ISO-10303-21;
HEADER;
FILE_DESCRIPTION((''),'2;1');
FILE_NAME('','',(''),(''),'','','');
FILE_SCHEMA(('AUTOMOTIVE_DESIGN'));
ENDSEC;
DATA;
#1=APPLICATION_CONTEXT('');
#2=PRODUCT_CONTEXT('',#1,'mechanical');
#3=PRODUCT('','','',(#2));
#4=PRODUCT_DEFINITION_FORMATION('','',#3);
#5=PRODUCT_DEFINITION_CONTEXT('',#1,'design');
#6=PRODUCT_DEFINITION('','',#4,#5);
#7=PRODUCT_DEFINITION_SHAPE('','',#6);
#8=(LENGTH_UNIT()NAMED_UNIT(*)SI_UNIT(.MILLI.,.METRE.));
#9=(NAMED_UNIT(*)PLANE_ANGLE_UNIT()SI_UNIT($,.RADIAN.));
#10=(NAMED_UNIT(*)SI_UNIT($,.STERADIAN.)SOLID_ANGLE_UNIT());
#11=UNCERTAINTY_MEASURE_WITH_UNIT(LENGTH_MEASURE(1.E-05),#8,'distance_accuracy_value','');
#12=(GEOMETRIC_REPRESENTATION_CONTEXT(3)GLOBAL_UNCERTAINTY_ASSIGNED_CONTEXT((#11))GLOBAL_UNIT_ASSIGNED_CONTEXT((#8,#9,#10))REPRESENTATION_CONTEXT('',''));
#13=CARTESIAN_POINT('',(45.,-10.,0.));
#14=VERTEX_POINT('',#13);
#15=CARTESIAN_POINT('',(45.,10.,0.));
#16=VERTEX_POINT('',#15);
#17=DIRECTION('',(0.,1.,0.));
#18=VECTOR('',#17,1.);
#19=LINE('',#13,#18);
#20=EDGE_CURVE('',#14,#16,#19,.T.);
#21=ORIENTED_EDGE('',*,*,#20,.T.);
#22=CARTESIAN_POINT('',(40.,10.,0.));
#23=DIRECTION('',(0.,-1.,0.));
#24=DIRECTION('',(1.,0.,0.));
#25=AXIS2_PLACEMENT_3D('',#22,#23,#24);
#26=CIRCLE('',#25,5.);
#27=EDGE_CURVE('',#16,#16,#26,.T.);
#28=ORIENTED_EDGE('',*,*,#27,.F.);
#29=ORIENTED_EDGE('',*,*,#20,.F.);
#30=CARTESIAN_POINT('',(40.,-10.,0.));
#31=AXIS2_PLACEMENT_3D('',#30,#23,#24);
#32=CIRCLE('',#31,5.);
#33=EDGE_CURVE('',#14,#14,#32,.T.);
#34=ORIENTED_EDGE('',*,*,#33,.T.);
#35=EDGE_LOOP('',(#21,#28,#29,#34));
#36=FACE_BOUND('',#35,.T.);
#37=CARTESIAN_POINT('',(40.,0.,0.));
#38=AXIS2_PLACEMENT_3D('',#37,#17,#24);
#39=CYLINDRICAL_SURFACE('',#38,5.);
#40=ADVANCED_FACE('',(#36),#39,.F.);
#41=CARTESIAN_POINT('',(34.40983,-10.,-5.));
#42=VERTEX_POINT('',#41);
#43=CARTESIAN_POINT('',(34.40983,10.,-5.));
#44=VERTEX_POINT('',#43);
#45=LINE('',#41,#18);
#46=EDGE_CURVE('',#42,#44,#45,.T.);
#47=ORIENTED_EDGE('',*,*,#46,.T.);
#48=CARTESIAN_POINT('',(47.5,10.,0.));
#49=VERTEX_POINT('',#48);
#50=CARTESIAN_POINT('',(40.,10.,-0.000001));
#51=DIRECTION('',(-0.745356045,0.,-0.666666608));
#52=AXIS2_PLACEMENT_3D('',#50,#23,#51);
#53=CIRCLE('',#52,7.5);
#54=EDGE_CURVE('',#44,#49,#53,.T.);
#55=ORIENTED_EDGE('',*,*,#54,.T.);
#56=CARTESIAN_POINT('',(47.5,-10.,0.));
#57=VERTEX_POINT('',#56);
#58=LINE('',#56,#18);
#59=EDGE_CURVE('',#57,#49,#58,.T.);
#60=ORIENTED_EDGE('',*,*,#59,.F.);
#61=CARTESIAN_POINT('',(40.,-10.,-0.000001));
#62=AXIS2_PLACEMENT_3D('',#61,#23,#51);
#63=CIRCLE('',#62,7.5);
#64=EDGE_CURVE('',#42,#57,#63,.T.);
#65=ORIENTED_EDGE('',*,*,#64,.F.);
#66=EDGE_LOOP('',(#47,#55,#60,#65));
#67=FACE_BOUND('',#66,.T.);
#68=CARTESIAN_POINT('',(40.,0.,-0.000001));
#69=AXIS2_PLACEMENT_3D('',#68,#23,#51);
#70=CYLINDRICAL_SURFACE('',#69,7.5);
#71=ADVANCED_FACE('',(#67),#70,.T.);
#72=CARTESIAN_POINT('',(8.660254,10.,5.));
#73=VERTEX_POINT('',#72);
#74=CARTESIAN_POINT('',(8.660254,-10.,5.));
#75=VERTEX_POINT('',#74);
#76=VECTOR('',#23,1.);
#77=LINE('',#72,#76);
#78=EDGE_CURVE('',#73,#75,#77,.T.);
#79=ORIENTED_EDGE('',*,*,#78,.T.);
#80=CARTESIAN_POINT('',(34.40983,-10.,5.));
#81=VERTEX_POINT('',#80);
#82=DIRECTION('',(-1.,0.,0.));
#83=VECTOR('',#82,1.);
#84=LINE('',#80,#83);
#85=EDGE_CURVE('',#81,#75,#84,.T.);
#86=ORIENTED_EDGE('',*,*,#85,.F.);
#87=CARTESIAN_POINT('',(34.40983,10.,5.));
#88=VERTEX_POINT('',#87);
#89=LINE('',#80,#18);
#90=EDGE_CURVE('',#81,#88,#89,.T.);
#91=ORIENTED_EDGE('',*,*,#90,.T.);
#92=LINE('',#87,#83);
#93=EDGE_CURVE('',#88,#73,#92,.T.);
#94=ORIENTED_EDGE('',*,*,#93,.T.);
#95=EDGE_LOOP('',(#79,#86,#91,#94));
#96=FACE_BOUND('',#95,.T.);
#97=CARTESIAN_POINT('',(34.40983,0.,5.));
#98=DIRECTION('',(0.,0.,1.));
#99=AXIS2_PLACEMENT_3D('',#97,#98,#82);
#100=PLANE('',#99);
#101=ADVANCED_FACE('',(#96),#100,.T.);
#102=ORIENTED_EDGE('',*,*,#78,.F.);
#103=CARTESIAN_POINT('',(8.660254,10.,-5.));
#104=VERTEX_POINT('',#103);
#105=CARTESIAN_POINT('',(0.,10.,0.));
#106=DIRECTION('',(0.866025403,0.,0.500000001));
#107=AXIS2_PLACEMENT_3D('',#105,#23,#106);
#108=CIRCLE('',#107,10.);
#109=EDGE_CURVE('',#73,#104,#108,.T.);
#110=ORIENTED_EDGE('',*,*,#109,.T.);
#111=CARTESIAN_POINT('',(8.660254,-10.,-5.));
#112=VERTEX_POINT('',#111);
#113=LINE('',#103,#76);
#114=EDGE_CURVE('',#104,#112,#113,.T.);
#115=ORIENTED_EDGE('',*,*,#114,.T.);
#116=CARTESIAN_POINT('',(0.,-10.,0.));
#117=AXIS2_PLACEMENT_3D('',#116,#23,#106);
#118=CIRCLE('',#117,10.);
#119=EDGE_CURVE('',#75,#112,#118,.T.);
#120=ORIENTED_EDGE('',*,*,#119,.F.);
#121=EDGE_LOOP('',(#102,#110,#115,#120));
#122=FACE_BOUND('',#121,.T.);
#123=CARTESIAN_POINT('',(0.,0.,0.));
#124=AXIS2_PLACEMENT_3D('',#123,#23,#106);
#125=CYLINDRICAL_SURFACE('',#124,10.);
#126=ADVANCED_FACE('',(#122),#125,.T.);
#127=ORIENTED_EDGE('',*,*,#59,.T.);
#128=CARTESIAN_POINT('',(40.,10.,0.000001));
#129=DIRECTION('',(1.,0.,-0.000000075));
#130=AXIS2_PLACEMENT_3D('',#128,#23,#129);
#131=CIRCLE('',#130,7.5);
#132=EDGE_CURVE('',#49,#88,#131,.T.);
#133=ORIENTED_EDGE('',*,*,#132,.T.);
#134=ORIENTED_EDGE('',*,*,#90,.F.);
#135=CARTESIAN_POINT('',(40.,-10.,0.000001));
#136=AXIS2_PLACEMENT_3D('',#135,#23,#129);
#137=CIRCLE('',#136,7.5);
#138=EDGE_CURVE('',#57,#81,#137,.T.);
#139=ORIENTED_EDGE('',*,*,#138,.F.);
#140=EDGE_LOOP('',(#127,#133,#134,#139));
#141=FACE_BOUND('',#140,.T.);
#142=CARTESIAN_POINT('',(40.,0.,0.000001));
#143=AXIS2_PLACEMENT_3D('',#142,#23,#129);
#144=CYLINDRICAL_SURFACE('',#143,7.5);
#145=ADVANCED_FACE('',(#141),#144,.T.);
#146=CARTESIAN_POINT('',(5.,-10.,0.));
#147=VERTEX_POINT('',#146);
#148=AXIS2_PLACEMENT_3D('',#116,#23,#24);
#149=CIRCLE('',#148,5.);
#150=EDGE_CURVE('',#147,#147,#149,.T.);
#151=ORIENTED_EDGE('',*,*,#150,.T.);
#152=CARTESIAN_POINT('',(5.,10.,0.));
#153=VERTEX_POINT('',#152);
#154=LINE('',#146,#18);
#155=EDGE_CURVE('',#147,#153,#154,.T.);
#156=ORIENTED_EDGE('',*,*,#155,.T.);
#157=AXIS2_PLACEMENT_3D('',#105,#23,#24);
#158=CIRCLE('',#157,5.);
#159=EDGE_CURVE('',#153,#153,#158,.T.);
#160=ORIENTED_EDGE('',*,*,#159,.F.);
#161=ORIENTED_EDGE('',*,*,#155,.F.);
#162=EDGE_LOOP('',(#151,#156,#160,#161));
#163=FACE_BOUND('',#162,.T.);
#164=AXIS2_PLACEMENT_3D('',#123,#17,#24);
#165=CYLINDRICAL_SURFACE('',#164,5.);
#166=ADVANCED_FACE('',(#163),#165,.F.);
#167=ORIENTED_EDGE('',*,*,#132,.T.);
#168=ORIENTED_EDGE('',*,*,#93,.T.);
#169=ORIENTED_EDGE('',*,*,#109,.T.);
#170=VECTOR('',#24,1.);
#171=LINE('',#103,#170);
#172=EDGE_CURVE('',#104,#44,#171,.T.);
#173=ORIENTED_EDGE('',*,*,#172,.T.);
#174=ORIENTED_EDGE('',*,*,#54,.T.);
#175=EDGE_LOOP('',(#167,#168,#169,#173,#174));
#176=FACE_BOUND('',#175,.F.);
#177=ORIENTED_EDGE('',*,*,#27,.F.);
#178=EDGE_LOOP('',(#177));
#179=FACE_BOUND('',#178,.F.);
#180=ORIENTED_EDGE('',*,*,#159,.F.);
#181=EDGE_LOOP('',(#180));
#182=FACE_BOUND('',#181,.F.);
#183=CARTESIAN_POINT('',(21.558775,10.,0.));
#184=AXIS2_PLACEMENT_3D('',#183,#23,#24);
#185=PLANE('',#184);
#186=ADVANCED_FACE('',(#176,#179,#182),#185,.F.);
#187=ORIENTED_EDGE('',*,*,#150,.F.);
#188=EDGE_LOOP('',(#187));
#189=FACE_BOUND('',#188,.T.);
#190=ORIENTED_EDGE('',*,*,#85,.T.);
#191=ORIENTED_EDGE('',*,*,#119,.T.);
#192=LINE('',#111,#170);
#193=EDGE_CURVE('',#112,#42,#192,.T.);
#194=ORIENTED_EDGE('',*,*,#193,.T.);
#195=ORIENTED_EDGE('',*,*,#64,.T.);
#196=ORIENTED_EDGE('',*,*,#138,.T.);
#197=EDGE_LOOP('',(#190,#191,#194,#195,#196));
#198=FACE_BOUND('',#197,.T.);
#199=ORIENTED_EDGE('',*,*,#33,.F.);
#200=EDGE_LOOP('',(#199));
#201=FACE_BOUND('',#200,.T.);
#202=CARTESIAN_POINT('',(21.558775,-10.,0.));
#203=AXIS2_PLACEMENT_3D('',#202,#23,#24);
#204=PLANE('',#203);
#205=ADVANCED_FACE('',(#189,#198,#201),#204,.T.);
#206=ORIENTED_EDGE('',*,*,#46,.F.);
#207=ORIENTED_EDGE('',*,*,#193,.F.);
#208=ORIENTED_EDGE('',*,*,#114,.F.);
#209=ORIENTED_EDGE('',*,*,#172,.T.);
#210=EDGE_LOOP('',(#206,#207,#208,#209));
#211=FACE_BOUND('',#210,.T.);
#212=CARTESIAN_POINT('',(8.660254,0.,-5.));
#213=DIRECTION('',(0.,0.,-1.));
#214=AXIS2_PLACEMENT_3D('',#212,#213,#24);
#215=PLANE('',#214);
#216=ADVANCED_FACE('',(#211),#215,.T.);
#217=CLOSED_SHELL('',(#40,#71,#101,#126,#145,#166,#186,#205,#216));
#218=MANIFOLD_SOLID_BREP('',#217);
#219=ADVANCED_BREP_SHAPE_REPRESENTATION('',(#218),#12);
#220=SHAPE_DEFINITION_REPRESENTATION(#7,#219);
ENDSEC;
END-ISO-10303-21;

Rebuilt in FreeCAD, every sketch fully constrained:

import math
import FreeCAD as App
import Part
import Sketcher
Q = App.Units.Quantity

doc = App.newDocument("Part")
body = doc.addObject("PartDesign::Body", "Body")

sketch1 = body.newObject("Sketcher::SketchObject", "Sketch")
sketch1.AttachmentSupport = (doc.getObject("XZ_Plane"), [""])
sketch1.MapMode = "FlatFace"
sketch1.addGeometry([
    Part.LineSegment(App.Vector(34, 5, 0), App.Vector(9, 5, 0)),
    Part.ArcOfCircle(Part.Circle(App.Vector(0, 0, 0), App.Vector(0, 0, 1), 10), math.radians(30), math.radians(330)),
    Part.LineSegment(App.Vector(9, -5, 0), App.Vector(34, -5, 0)),
    Part.ArcOfCircle(Part.Circle(App.Vector(40, 0, 0), App.Vector(0, 0, 1), 7), math.radians(-138), math.radians(0)),
    Part.ArcOfCircle(Part.Circle(App.Vector(40, 0, 0), App.Vector(0, 0, 1), 7), math.radians(0), math.radians(138)),
    Part.Circle(App.Vector(0, 0, 0), App.Vector(0, 0, 1), 5),
    Part.Circle(App.Vector(40, 0, 0), App.Vector(0, 0, 1), 5),
], False)
sketch1.addConstraint([
    Sketcher.Constraint("Coincident", 0, 2, 1, 1),
    Sketcher.Constraint("Coincident", 1, 2, 2, 1),
    Sketcher.Constraint("Coincident", 2, 2, 3, 1),
    Sketcher.Constraint("Tangent", 3, 2, 4, 1),
    Sketcher.Constraint("Coincident", 4, 2, 0, 1),
    Sketcher.Constraint("Horizontal", 0),
    Sketcher.Constraint("Horizontal", 2),
    Sketcher.Constraint("Coincident", 1, 3, -1, 1),
    Sketcher.Constraint("Coincident", 5, 3, -1, 1),
    Sketcher.Constraint("Coincident", 6, 3, 3, 3),
    Sketcher.Constraint("Equal", 3, 4),
    Sketcher.Constraint("Equal", 5, 6),
    Sketcher.Constraint("Symmetric", 2, 2, 4, 2, -1),
    Sketcher.Constraint("PointOnObject", 3, 2, -1),
    Sketcher.Constraint("Diameter", 5, Q("10 mm")),
    Sketcher.Constraint("Radius", 1, Q("10 mm")),
    Sketcher.Constraint("Radius", 3, Q("7.5 mm")),
    Sketcher.Constraint("DistanceX", -1, 1, 3, 3, Q("40 mm")),
    Sketcher.Constraint("DistanceY", -1, 1, 0, 2, Q("5 mm")),
])
pad1 = body.newObject("PartDesign::Pad", "Pad")
pad1.Profile = sketch1
pad1.Length = 20
pad1.Midplane = True

doc.recompute()
